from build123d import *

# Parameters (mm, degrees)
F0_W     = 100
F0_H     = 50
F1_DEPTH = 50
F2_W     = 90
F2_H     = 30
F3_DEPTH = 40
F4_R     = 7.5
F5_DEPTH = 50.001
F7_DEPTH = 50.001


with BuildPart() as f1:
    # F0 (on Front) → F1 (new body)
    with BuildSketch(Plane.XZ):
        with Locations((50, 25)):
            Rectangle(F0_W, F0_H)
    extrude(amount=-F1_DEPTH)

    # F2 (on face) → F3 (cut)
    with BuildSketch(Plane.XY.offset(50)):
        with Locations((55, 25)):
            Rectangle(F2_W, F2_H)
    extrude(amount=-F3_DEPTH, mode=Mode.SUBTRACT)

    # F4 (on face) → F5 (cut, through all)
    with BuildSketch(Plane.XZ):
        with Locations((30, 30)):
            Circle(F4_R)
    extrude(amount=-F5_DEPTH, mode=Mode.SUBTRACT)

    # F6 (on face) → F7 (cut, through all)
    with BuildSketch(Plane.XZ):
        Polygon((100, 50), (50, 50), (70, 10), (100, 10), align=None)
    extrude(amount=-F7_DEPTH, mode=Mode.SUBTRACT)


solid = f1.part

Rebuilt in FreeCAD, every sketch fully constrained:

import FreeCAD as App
import Part
import Sketcher
Q = App.Units.Quantity


def add_polygon(sketch, points):
    """Adds a closed chain of lines whose ends are joined by coincident constraints."""
    first, n = sketch.GeometryCount, len(points)
    for a, b in zip(points, points[1:] + points[:1]):
        sketch.addGeometry(Part.LineSegment(App.Vector(*a, 0), App.Vector(*b, 0)), False)
    for i in range(n):
        sketch.addConstraint(Sketcher.Constraint("Coincident", first + i, 2, first + (i + 1) % n, 1))

doc = App.newDocument("Part")
params = doc.addObject("Spreadsheet::Sheet", "Params")
for row, (alias, value) in enumerate([
    ("sketch1_width", "100 mm"),
    ("sketch1_height", "50 mm"),
    ("pad1_length", "50 mm"),
    ("sketch2_width", "90 mm"),
    ("sketch2_height", "30 mm"),
    ("pocket1_length", "40 mm"),
    ("sketch3_diameter", "15 mm"),
    ("sketch4_width", "50 mm"),
    ("sketch4_width2", "30 mm"),
    ("sketch4_height", "40 mm"),
], start=1):
    params.set(f"A{row}", alias)
    params.set(f"B{row}", "=" + value)
    params.setAlias(f"B{row}", alias)

body = doc.addObject("PartDesign::Body", "Body")

sketch1 = body.newObject("Sketcher::SketchObject", "Sketch")
sketch1.AttachmentSupport = (doc.getObject("XZ_Plane"), [""])
sketch1.MapMode = "FlatFace"
add_polygon(sketch1, [(0, 50), (0, 0), (100, 0), (100, 50)])
sketch1.addConstraint(Sketcher.Constraint("Vertical", 0))
sketch1.addConstraint(Sketcher.Constraint("Horizontal", 1))
sketch1.addConstraint(Sketcher.Constraint("Vertical", 2))
sketch1.addConstraint(Sketcher.Constraint("Horizontal", 3))
sketch1.addConstraint(Sketcher.Constraint("Coincident", 0, 2, -1, 1))
sketch1.addConstraint(Sketcher.Constraint("DistanceX", 1, 1, 1, 2, Q("100 mm")))
sketch1.addConstraint(Sketcher.Constraint("DistanceY", 0, 2, 0, 1, Q("50 mm")))
sketch1.setExpression("Constraints[9]", "Params.sketch1_width")
sketch1.setExpression("Constraints[10]", "Params.sketch1_height")
pad1 = body.newObject("PartDesign::Pad", "Pad")
pad1.Profile = sketch1
pad1.setExpression("Length", "Params.pad1_length")
pad1.Reversed = True

sketch2 = body.newObject("Sketcher::SketchObject", "Sketch001")
sketch2.AttachmentSupport = (doc.getObject("XY_Plane"), [""])
sketch2.MapMode = "FlatFace"
sketch2.AttachmentOffset = App.Placement(App.Vector(0, 0, 50), App.Rotation())
add_polygon(sketch2, [(10, 40), (10, 10), (100, 10), (100, 40)])
sketch2.addConstraint(Sketcher.Constraint("Vertical", 0))
sketch2.addConstraint(Sketcher.Constraint("Horizontal", 1))
sketch2.addConstraint(Sketcher.Constraint("Vertical", 2))
sketch2.addConstraint(Sketcher.Constraint("Horizontal", 3))
sketch2.addConstraint(Sketcher.Constraint("DistanceX", 1, 1, 1, 2, Q("90 mm")))
sketch2.addConstraint(Sketcher.Constraint("DistanceY", 0, 2, 0, 1, Q("30 mm")))
sketch2.addConstraint(Sketcher.Constraint("DistanceX", -1, 1, 0, 2, Q("10 mm")))
sketch2.addConstraint(Sketcher.Constraint("DistanceY", -1, 1, 0, 2, Q("10 mm")))
sketch2.setExpression("Constraints[8]", "Params.sketch2_width")
sketch2.setExpression("Constraints[9]", "Params.sketch2_height")
pocket1 = body.newObject("PartDesign::Pocket", "Pocket")
pocket1.Profile = sketch2
pocket1.setExpression("Length", "Params.pocket1_length")

sketch3 = body.newObject("Sketcher::SketchObject", "Sketch002")
sketch3.AttachmentSupport = (doc.getObject("XZ_Plane"), [""])
sketch3.MapMode = "FlatFace"
sketch3.addGeometry(Part.Circle(App.Vector(30, 30, 0), App.Vector(0, 0, 1), 8), False)
sketch3.addConstraint(Sketcher.Constraint("Diameter", 0, Q("15 mm")))
sketch3.addConstraint(Sketcher.Constraint("DistanceX", -1, 1, 0, 3, Q("30 mm")))
sketch3.addConstraint(Sketcher.Constraint("DistanceY", -1, 1, 0, 3, Q("30 mm")))
sketch3.setExpression("Constraints[0]", "Params.sketch3_diameter")
pocket2 = body.newObject("PartDesign::Pocket", "Pocket001")
pocket2.Profile = sketch3
pocket2.Type = "ThroughAll"

sketch4 = body.newObject("Sketcher::SketchObject", "Sketch003")
sketch4.AttachmentSupport = (doc.getObject("XZ_Plane"), [""])
sketch4.MapMode = "FlatFace"
add_polygon(sketch4, [(100, 50), (50, 50), (70, 10), (100, 10)])
sketch4.addConstraint(Sketcher.Constraint("Horizontal", 0))
sketch4.addConstraint(Sketcher.Constraint("Horizontal", 2))
sketch4.addConstraint(Sketcher.Constraint("Vertical", 3))
sketch4.addConstraint(Sketcher.Constraint("DistanceX", 0, 2, 0, 1, Q("50 mm")))
sketch4.addConstraint(Sketcher.Constraint("DistanceX", 2, 1, 2, 2, Q("30 mm")))
sketch4.addConstraint(Sketcher.Constraint("DistanceY", 3, 1, 3, 2, Q("40 mm")))
sketch4.addConstraint(Sketcher.Constraint("DistanceX", -1, 1, 0, 2, Q("50 mm")))
sketch4.addConstraint(Sketcher.Constraint("DistanceY", -1, 1, 0, 2, Q("50 mm")))
sketch4.setExpression("Constraints[7]", "Params.sketch4_width")
sketch4.setExpression("Constraints[8]", "Params.sketch4_width2")
sketch4.setExpression("Constraints[9]", "Params.sketch4_height")
pocket3 = body.newObject("PartDesign::Pocket", "Pocket002")
pocket3.Profile = sketch4
pocket3.Type = "ThroughAll"

doc.recompute()
